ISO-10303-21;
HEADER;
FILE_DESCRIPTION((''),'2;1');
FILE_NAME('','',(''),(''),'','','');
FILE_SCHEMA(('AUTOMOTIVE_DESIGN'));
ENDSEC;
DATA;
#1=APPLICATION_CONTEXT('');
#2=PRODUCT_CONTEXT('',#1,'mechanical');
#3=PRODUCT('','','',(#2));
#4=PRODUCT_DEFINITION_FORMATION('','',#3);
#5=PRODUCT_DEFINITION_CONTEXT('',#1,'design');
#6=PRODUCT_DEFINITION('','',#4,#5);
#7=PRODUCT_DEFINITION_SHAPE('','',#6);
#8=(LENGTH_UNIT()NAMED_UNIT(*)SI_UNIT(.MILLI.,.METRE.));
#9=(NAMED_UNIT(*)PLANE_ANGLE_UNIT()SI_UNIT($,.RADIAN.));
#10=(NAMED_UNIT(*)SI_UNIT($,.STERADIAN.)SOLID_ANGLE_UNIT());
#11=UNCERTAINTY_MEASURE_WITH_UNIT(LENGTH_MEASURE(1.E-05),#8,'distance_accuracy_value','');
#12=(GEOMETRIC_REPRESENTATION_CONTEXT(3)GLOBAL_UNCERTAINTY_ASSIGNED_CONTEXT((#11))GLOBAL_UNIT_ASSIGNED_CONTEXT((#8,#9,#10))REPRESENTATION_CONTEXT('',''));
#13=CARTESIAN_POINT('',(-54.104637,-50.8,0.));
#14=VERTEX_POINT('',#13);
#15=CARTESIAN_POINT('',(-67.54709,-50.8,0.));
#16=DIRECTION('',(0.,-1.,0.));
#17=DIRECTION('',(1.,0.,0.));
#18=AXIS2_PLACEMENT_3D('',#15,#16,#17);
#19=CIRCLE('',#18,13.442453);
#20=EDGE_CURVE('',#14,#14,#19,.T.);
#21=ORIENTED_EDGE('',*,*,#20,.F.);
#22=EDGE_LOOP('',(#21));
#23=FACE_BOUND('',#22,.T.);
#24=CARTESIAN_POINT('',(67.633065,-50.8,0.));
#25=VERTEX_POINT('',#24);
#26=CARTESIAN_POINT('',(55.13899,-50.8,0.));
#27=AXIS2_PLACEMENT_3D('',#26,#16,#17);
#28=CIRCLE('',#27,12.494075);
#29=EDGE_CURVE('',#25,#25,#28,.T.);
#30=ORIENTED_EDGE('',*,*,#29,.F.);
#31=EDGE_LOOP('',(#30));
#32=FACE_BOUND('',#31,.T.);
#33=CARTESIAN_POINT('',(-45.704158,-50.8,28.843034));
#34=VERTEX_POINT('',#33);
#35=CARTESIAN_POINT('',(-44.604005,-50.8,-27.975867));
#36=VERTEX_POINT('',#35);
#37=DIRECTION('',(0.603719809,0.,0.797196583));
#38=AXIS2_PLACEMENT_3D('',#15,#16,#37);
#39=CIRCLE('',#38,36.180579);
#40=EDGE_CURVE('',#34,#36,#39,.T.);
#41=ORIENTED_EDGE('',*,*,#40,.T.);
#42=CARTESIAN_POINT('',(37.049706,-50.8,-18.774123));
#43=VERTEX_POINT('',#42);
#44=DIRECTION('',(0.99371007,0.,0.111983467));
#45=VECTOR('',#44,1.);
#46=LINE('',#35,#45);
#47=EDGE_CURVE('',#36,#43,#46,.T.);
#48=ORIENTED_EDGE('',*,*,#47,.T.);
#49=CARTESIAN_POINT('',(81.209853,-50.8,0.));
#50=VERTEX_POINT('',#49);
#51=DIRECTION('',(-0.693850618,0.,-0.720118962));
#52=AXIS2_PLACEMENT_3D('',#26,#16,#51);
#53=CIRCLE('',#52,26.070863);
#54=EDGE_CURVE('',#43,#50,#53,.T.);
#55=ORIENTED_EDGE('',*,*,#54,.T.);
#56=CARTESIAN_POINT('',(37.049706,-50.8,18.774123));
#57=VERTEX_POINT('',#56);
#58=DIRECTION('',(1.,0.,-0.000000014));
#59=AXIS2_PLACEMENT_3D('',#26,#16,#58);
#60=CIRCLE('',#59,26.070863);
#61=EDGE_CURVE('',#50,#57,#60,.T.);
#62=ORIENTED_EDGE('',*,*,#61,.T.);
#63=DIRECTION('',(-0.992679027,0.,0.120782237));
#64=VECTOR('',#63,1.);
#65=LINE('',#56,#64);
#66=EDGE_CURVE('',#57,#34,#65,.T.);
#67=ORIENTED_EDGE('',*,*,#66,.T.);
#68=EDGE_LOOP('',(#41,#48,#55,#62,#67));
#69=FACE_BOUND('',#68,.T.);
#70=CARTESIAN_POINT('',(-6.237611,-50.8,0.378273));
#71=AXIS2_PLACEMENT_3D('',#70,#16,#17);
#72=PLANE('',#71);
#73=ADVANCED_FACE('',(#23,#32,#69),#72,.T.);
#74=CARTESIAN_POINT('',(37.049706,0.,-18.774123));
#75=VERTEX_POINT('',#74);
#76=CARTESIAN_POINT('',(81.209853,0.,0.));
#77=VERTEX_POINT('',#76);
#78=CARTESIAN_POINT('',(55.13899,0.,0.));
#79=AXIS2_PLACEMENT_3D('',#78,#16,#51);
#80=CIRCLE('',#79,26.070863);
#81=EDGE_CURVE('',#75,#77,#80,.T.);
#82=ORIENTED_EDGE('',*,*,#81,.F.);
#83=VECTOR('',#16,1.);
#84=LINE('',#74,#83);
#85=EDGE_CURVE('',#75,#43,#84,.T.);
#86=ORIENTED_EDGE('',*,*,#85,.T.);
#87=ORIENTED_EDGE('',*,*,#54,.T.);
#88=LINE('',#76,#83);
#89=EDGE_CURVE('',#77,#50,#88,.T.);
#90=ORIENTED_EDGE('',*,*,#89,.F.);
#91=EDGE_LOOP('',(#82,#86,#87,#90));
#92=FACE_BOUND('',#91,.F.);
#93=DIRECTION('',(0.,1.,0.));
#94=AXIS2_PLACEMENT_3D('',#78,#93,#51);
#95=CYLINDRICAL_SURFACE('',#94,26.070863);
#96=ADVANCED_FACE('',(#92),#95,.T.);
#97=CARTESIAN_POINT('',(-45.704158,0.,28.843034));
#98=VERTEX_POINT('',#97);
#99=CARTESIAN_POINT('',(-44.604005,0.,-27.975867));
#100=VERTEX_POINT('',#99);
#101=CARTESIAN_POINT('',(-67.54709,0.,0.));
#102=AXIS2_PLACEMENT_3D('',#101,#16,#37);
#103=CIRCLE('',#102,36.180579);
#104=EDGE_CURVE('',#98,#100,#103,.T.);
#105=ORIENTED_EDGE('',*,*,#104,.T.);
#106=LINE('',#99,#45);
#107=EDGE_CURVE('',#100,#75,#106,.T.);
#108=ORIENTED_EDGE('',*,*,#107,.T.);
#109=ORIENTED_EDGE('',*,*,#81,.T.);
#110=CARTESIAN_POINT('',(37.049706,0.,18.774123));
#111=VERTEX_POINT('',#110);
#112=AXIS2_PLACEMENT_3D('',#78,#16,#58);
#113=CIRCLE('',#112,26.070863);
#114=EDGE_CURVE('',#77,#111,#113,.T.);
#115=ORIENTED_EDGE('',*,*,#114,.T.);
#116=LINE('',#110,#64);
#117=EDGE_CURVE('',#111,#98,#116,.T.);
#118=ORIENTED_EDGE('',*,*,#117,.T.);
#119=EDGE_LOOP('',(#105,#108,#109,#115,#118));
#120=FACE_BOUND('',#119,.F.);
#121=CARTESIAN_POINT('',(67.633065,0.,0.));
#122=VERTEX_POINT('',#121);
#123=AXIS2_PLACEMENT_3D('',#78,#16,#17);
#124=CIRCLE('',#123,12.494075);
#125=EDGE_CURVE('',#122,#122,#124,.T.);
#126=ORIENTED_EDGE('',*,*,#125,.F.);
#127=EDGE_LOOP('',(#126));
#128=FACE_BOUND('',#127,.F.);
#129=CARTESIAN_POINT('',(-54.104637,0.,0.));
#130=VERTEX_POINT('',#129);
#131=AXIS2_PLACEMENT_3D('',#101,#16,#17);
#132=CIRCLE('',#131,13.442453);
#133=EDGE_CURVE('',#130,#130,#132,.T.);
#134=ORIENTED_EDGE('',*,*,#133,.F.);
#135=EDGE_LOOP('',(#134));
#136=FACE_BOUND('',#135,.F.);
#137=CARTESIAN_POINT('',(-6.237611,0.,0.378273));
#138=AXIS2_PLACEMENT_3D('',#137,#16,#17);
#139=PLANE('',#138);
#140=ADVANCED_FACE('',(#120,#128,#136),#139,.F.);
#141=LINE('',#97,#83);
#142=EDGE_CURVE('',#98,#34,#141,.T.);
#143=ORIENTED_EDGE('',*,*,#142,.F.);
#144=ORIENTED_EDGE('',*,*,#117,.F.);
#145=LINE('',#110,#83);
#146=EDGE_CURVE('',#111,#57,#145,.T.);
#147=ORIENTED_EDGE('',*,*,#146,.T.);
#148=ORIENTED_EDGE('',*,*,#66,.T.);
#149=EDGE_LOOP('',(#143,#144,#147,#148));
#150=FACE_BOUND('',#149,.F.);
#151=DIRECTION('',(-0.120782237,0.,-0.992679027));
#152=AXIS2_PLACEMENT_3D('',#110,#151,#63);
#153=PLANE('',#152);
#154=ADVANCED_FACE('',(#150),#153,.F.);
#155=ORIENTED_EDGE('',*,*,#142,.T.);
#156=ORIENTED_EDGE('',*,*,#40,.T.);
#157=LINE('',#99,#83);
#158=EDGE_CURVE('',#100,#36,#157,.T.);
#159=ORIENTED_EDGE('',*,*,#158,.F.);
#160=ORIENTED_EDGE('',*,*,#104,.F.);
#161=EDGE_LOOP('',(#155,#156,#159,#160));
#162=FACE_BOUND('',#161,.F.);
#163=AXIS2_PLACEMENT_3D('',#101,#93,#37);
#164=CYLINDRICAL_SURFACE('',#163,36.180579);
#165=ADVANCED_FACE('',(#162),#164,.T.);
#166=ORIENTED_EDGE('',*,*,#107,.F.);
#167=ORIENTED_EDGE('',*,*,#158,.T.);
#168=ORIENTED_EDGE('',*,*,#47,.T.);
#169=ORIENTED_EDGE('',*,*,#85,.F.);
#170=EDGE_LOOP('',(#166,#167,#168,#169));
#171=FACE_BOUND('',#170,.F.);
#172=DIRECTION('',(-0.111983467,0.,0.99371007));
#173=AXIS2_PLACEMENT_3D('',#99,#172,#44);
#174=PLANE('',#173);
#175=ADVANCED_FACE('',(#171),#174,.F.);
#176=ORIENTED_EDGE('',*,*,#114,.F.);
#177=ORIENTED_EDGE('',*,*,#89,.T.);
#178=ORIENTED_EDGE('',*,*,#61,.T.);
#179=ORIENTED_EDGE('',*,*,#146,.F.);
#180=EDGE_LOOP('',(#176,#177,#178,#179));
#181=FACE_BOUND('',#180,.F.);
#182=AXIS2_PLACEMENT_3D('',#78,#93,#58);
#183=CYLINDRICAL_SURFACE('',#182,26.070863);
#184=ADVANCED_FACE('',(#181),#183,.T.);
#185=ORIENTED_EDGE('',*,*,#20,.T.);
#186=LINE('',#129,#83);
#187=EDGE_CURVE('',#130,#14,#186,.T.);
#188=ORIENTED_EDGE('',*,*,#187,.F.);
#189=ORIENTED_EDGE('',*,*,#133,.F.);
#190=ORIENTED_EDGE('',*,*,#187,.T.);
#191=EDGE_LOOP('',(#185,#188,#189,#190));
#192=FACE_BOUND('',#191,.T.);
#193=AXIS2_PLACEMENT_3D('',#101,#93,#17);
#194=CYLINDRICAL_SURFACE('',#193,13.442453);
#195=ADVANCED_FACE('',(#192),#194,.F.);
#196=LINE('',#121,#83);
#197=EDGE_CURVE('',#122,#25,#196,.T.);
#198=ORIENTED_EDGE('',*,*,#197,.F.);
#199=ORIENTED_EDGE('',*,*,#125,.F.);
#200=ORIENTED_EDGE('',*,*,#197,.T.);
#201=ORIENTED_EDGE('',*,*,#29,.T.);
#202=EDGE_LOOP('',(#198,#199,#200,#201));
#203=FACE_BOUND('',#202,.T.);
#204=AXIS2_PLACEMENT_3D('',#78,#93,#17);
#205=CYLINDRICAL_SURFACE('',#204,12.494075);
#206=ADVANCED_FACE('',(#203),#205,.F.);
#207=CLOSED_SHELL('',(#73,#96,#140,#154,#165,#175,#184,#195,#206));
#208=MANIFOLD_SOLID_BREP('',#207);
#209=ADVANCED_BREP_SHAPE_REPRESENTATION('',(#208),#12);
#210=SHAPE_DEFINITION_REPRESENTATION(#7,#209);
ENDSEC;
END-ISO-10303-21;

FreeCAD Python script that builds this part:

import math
import FreeCAD as App
import Part
import Sketcher

V = App.Vector
Q = App.Units.Quantity

doc = App.newDocument("Part")
body = doc.addObject("PartDesign::Body", "Body")

sketch1 = body.newObject("Sketcher::SketchObject", "Sketch")
sketch1.AttachmentSupport = (doc.getObject("XZ_Plane"), [""])
sketch1.MapMode = "FlatFace"
sketch1.addGeometry([
    Part.LineSegment(V(37, 19, 0), V(-46, 29, 0)),
    Part.ArcOfCircle(Part.Circle(V(-68, 0, 0), V(0, 0, 1), 36), math.radians(53), math.radians(309)),
    Part.LineSegment(V(-45, -28, 0), V(37, -19, 0)),
    Part.ArcOfCircle(Part.Circle(V(55, 0, 0), V(0, 0, 1), 26), math.radians(-134), math.radians(0)),
    Part.ArcOfCircle(Part.Circle(V(55, 0, 0), V(0, 0, 1), 26), math.radians(0), math.radians(134)),
    Part.Circle(V(-68, 0, 0), V(0, 0, 1), 13),
    Part.Circle(V(55, 0, 0), V(0, 0, 1), 12),
], False)
sketch1.addConstraint([
    Sketcher.Constraint("Coincident", 0, 2, 1, 1),
    Sketcher.Constraint("Coincident", 1, 2, 2, 1),
    Sketcher.Constraint("Coincident", 2, 2, 3, 1),
    Sketcher.Constraint("Tangent", 3, 2, 4, 1),
    Sketcher.Constraint("Coincident", 4, 2, 0, 1),
    Sketcher.Constraint("Coincident", 5, 3, 1, 3),
    Sketcher.Constraint("Coincident", 6, 3, 3, 3),
    Sketcher.Constraint("Equal", 3, 4),
    Sketcher.Constraint("Symmetric", 2, 2, 4, 2, -1),
    Sketcher.Constraint("PointOnObject", 1, 3, -1),
    Sketcher.Constraint("PointOnObject", 3, 2, -1),
    Sketcher.Constraint("Diameter", 6, Q("24.98815 mm")),
    Sketcher.Constraint("Radius", 1, Q("36.180579 mm")),
    Sketcher.Constraint("Diameter", 5, Q("26.884906 mm")),
    Sketcher.Constraint("Radius", 3, Q("26.070863 mm")),
    Sketcher.Constraint("DistanceY", 1, 2, 0, 2, Q("56.818901 mm")),
    Sketcher.Constraint("Distance", 0, Q("83.364171 mm")),
    Sketcher.Constraint("Distance", 2, Q("82.170558 mm")),
    Sketcher.Constraint("DistanceX", 1, 3, -1, 1, Q("67.54709 mm")),
    Sketcher.Constraint("DistanceX", -1, 1, 3, 3, Q("55.13899 mm")),
])
pad1 = body.newObject("PartDesign::Pad", "Pad")
pad1.Profile = sketch1
pad1.Length = Q("2 in")

doc.recompute()
